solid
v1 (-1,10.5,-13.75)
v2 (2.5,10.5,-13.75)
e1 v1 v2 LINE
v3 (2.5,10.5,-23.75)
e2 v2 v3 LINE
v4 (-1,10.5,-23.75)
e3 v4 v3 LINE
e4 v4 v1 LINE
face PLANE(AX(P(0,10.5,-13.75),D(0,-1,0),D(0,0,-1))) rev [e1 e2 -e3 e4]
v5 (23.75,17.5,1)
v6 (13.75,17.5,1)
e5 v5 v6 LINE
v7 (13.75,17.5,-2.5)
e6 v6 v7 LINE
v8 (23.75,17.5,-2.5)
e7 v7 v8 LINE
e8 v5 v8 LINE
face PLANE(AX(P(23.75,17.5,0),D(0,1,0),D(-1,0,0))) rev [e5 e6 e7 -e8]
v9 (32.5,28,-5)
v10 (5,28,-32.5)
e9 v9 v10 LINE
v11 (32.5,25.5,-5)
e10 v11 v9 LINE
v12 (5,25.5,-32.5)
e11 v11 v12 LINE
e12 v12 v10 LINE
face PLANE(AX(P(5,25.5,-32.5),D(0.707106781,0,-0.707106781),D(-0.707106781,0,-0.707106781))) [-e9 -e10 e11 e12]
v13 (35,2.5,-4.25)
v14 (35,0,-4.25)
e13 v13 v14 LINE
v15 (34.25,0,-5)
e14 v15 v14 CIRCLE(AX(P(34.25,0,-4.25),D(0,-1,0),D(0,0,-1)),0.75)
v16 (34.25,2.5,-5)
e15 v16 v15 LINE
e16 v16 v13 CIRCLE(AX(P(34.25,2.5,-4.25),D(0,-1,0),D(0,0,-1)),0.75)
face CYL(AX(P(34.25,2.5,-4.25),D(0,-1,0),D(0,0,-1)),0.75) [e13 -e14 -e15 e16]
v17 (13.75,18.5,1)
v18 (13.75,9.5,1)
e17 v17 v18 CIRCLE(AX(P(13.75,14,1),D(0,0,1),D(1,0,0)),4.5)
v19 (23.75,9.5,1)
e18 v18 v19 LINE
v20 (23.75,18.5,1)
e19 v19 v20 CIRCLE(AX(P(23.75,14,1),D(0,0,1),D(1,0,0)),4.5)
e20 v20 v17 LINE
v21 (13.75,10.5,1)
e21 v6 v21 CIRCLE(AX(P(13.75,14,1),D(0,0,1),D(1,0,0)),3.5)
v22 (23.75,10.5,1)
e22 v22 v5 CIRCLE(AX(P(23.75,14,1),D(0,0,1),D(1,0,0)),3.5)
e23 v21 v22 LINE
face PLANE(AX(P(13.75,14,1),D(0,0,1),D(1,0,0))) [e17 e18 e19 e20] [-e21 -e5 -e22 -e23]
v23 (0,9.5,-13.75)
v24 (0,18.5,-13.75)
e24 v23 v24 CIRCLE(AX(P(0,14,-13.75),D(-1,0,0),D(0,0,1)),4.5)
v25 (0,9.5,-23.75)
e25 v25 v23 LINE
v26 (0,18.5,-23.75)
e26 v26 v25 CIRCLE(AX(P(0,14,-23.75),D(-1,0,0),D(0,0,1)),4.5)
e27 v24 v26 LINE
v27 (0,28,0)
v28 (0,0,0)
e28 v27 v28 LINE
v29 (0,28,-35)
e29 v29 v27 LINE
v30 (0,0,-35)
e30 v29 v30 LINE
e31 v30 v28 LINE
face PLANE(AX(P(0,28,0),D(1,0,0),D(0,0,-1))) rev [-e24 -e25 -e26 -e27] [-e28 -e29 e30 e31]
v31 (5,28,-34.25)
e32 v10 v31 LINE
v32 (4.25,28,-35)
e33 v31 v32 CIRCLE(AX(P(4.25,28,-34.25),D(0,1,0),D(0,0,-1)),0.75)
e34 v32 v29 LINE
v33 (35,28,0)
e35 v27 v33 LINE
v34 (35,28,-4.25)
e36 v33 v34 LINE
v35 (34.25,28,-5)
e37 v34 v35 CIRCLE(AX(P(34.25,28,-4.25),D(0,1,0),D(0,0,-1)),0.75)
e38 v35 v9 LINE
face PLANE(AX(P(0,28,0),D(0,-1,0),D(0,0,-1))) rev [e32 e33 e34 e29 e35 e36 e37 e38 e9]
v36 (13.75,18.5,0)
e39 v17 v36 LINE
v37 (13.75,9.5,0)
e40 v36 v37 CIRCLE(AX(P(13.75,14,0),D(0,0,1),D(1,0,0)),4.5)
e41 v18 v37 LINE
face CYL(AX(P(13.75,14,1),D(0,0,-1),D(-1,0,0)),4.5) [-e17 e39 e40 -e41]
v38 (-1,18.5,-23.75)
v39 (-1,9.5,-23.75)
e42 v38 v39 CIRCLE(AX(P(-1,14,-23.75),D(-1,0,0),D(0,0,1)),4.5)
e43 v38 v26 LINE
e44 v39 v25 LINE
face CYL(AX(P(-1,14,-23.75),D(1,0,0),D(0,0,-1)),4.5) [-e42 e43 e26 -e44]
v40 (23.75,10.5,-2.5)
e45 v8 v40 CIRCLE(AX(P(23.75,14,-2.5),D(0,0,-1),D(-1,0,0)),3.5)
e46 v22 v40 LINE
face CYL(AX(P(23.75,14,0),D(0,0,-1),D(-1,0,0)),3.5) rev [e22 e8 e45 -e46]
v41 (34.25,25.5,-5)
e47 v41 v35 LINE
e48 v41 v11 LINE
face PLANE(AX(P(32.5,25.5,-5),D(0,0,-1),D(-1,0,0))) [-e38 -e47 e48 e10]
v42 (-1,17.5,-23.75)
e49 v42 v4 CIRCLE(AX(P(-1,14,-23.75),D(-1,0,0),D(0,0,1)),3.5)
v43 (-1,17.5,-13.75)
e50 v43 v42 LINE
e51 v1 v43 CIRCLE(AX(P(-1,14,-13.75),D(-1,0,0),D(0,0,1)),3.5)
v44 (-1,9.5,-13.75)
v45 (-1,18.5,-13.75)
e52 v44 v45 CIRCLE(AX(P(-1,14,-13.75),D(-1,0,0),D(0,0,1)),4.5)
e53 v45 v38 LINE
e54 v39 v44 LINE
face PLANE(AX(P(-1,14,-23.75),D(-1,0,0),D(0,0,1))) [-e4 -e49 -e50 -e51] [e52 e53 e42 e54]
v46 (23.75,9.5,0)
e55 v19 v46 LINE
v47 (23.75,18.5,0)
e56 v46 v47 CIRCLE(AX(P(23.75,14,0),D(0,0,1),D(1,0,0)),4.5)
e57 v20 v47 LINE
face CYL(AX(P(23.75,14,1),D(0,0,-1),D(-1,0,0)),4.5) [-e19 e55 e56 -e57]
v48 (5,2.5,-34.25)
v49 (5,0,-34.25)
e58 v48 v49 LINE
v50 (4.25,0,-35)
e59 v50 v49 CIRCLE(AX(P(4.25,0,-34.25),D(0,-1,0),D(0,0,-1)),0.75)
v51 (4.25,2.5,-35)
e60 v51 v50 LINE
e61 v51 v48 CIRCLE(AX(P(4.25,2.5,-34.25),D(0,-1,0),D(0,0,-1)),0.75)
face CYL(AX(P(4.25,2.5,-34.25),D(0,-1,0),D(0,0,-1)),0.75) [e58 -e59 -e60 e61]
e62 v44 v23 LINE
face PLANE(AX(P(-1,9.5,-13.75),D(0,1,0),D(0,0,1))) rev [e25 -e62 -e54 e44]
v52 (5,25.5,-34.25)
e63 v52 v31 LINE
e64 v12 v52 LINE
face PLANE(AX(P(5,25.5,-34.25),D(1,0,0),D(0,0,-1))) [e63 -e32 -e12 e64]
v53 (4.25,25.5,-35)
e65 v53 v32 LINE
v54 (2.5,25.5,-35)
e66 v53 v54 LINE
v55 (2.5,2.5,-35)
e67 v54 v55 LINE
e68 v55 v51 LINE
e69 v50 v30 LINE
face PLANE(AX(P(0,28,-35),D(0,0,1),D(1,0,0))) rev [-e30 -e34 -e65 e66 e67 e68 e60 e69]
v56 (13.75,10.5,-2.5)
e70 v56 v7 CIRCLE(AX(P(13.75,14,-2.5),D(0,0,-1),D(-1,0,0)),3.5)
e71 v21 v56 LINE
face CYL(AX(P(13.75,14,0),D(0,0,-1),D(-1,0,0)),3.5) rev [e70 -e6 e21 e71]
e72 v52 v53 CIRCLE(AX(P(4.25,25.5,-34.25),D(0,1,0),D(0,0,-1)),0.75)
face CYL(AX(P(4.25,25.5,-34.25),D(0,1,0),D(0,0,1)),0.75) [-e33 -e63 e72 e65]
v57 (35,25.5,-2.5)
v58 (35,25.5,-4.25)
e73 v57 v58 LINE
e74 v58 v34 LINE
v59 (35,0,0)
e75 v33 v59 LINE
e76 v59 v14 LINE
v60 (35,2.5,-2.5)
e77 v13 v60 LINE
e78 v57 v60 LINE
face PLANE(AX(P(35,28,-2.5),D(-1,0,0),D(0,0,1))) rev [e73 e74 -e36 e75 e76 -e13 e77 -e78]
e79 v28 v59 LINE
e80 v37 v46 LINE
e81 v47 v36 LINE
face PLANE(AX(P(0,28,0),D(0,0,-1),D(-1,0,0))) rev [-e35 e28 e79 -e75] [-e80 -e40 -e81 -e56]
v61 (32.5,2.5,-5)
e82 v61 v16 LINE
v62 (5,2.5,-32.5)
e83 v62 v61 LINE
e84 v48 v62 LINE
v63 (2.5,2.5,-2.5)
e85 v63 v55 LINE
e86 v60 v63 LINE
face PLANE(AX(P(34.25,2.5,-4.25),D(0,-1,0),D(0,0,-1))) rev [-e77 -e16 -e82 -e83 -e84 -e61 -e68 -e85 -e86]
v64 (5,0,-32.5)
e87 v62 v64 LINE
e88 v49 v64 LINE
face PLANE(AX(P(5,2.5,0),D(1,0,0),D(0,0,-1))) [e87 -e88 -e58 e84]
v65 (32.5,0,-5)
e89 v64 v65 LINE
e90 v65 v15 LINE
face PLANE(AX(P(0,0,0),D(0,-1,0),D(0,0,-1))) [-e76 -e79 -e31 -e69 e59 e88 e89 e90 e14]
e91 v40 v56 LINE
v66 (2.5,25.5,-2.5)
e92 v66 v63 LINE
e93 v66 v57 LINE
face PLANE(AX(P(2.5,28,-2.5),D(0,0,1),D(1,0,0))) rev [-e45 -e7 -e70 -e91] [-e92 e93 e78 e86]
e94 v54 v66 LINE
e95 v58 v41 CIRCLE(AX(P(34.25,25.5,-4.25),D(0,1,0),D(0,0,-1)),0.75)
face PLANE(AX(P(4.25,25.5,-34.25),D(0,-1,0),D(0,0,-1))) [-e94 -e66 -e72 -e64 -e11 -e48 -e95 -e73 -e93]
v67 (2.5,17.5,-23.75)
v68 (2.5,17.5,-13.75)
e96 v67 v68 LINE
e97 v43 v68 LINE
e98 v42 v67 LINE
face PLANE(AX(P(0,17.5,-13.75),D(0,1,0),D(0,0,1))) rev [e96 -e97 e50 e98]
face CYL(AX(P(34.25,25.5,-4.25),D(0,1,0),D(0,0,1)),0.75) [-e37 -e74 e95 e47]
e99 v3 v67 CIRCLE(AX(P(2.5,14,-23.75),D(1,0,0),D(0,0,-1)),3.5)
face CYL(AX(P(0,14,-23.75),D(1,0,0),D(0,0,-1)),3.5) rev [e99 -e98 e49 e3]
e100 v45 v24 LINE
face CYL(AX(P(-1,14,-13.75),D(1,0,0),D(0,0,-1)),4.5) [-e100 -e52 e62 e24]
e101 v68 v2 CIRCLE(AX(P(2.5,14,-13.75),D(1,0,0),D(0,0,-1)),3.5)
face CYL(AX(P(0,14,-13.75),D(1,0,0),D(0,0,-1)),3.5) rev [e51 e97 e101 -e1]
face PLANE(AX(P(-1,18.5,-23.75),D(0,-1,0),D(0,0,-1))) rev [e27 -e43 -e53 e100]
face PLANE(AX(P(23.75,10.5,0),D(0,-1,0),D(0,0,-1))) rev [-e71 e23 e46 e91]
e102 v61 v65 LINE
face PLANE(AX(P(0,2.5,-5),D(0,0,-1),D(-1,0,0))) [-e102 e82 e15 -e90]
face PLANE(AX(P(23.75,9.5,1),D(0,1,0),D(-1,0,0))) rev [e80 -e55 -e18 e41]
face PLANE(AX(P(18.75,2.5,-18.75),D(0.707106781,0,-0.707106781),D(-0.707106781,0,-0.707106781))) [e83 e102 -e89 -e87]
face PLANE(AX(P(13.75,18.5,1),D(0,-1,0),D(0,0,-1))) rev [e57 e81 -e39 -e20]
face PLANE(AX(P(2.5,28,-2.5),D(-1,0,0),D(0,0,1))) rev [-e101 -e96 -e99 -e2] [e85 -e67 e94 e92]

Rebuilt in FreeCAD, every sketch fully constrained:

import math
import FreeCAD as App
import Part
import Sketcher
from FreeCAD import Vector
Q = App.Units.Quantity


def add_polygon(sketch, points):
    """Adds a closed chain of lines whose ends are joined by coincident constraints."""
    first, n = sketch.GeometryCount, len(points)
    for a, b in zip(points, points[1:] + points[:1]):
        sketch.addGeometry(Part.LineSegment(App.Vector(*a, 0), App.Vector(*b, 0)), False)
    for i in range(n):
        sketch.addConstraint(Sketcher.Constraint("Coincident", first + i, 2, first + (i + 1) % n, 1))

doc = App.newDocument("Part")
body = doc.addObject("PartDesign::Body", "Body")

sketch1 = body.newObject("Sketcher::SketchObject", "Sketch")
sketch1.AttachmentSupport = (doc.getObject("XZ_Plane"), [""])
sketch1.MapMode = "FlatFace"
add_polygon(sketch1, [(0, -35), (0, 0), (35, 0), (35, -2.5), (2.5, -2.5), (2.5, -35)])
sketch1.addConstraint(Sketcher.Constraint("Vertical", 0))
sketch1.addConstraint(Sketcher.Constraint("Horizontal", 1))
sketch1.addConstraint(Sketcher.Constraint("Vertical", 2))
sketch1.addConstraint(Sketcher.Constraint("Horizontal", 3))
sketch1.addConstraint(Sketcher.Constraint("Vertical", 4))
sketch1.addConstraint(Sketcher.Constraint("Horizontal", 5))
sketch1.addConstraint(Sketcher.Constraint("Coincident", 0, 2, -1, 1))
sketch1.addConstraint(Sketcher.Constraint("Equal", 1, 0))
sketch1.addConstraint(Sketcher.Constraint("Equal", 5, 2))
sketch1.addConstraint(Sketcher.Constraint("DistanceX", 1, 1, 1, 2, Q("35 mm")))
sketch1.addConstraint(Sketcher.Constraint("DistanceX", 3, 2, 3, 1, Q("32.5 mm")))
pad1 = body.newObject("PartDesign::Pad", "Pad")
pad1.Profile = sketch1
pad1.Length = 28
pad1.Reversed = True

sketch2 = body.newObject("Sketcher::SketchObject", "Sketch001")
sketch2.AttachmentSupport = (doc.getObject("XZ_Plane"), [""])
sketch2.MapMode = "FlatFace"
sketch2.AttachmentOffset = App.Placement(Vector(0, 0, -28), App.Rotation())
sketch2.addGeometry(Part.LineSegment(Vector(4.25, -35, 0), Vector(2.5, -35, 0)), False)
sketch2.addGeometry(Part.LineSegment(Vector(2.5, -35, 0), Vector(2.5, -2.5, 0)), False)
sketch2.addGeometry(Part.LineSegment(Vector(2.5, -2.5, 0), Vector(35, -2.5, 0)), False)
sketch2.addGeometry(Part.LineSegment(Vector(35, -2.5, 0), Vector(35, -4.25, 0)), False)
sketch2.addGeometry(Part.ArcOfCircle(Part.Circle(Vector(34.25, -4.25, 0), Vector(0, 0, 1), 0.75), math.radians(-90), math.radians(0)), False)
sketch2.addGeometry(Part.LineSegment(Vector(34.25, -5, 0), Vector(32.5, -5, 0)), False)
sketch2.addGeometry(Part.LineSegment(Vector(32.5, -5, 0), Vector(5, -32.5, 0)), False)
sketch2.addGeometry(Part.LineSegment(Vector(5, -32.5, 0), Vector(5, -34.25, 0)), False)
sketch2.addGeometry(Part.ArcOfCircle(Part.Circle(Vector(4.25, -34.25, 0), Vector(0, 0, 1), 0.75), math.radians(-90), math.radians(0)), False)
sketch2.addConstraint(Sketcher.Constraint("Coincident", 0, 2, 1, 1))
sketch2.addConstraint(Sketcher.Constraint("Coincident", 1, 2, 2, 1))
sketch2.addConstraint(Sketcher.Constraint("Coincident", 2, 2, 3, 1))
sketch2.addConstraint(Sketcher.Constraint("Tangent", 3, 2, 4, 2))
sketch2.addConstraint(Sketcher.Constraint("Tangent", 4, 1, 5, 1))
sketch2.addConstraint(Sketcher.Constraint("Coincident", 5, 2, 6, 1))
sketch2.addConstraint(Sketcher.Constraint("Coincident", 6, 2, 7, 1))
sketch2.addConstraint(Sketcher.Constraint("Tangent", 7, 2, 8, 2))
sketch2.addConstraint(Sketcher.Constraint("Tangent", 8, 1, 0, 1))
sketch2.addConstraint(Sketcher.Constraint("Horizontal", 0))
sketch2.addConstraint(Sketcher.Constraint("Vertical", 1))
sketch2.addConstraint(Sketcher.Constraint("Horizontal", 2))
sketch2.addConstraint(Sketcher.Constraint("Vertical", 3))
sketch2.addConstraint(Sketcher.Constraint("Horizontal", 5))
sketch2.addConstraint(Sketcher.Constraint("Vertical", 7))
sketch2.addConstraint(Sketcher.Constraint("Equal", 4, 8))
sketch2.addConstraint(Sketcher.Constraint("Equal", 0, 5))
sketch2.addConstraint(Sketcher.Constraint("Equal", 2, 1))
sketch2.addConstraint(Sketcher.Constraint("Equal", 5, 3))
sketch2.addConstraint(Sketcher.Constraint("Equal", 3, 7))
sketch2.addConstraint(Sketcher.Constraint("Radius", 4, Q("0.75 mm")))
sketch2.addConstraint(Sketcher.Constraint("DistanceX", 2, 1, 2, 2, Q("32.5 mm")))
sketch2.addConstraint(Sketcher.Constraint("DistanceY", 0, 2, -1, 1, Q("35 mm")))
sketch2.addConstraint(Sketcher.Constraint("DistanceX", -1, 1, 2, 2, Q("35 mm")))
sketch2.addConstraint(Sketcher.Constraint("DistanceY", 4, 1, -1, 1, Q("5 mm")))
pad2 = body.newObject("PartDesign::Pad", "Pad001")
pad2.Profile = sketch2
pad2.Length = 2.5

sketch3 = body.newObject("Sketcher::SketchObject", "Sketch002")
sketch3.AttachmentSupport = (doc.getObject("XZ_Plane"), [""])
sketch3.MapMode = "FlatFace"
sketch3.AttachmentOffset = App.Placement(Vector(0, 0, -2.5), App.Rotation())
sketch3.addGeometry(Part.LineSegment(Vector(4.25, -35, 0), Vector(2.5, -35, 0)), False)
sketch3.addGeometry(Part.LineSegment(Vector(2.5, -35, 0), Vector(2.5, -2.5, 0)), False)
sketch3.addGeometry(Part.LineSegment(Vector(2.5, -2.5, 0), Vector(35, -2.5, 0)), False)
sketch3.addGeometry(Part.LineSegment(Vector(35, -2.5, 0), Vector(35, -4.25, 0)), False)
sketch3.addGeometry(Part.ArcOfCircle(Part.Circle(Vector(34.25, -4.25, 0), Vector(0, 0, 1), 0.75), math.radians(-90), math.radians(0)), False)
sketch3.addGeometry(Part.LineSegment(Vector(34.25, -5, 0), Vector(32.5, -5, 0)), False)
sketch3.addGeometry(Part.LineSegment(Vector(32.5, -5, 0), Vector(5, -32.5, 0)), False)
sketch3.addGeometry(Part.LineSegment(Vector(5, -32.5, 0), Vector(5, -34.25, 0)), False)
sketch3.addGeometry(Part.ArcOfCircle(Part.Circle(Vector(4.25, -34.25, 0), Vector(0, 0, 1), 0.75), math.radians(-90), math.radians(0)), False)
sketch3.addConstraint(Sketcher.Constraint("Coincident", 0, 2, 1, 1))
sketch3.addConstraint(Sketcher.Constraint("Coincident", 1, 2, 2, 1))
sketch3.addConstraint(Sketcher.Constraint("Coincident", 2, 2, 3, 1))
sketch3.addConstraint(Sketcher.Constraint("Tangent", 3, 2, 4, 2))
sketch3.addConstraint(Sketcher.Constraint("Tangent", 4, 1, 5, 1))
sketch3.addConstraint(Sketcher.Constraint("Coincident", 5, 2, 6, 1))
sketch3.addConstraint(Sketcher.Constraint("Coincident", 6, 2, 7, 1))
sketch3.addConstraint(Sketcher.Constraint("Tangent", 7, 2, 8, 2))
sketch3.addConstraint(Sketcher.Constraint("Tangent", 8, 1, 0, 1))
sketch3.addConstraint(Sketcher.Constraint("Horizontal", 0))
sketch3.addConstraint(Sketcher.Constraint("Vertical", 1))
sketch3.addConstraint(Sketcher.Constraint("Horizontal", 2))
sketch3.addConstraint(Sketcher.Constraint("Vertical", 3))
sketch3.addConstraint(Sketcher.Constraint("Horizontal", 5))
sketch3.addConstraint(Sketcher.Constraint("Vertical", 7))
sketch3.addConstraint(Sketcher.Constraint("Equal", 4, 8))
sketch3.addConstraint(Sketcher.Constraint("Equal", 0, 5))
sketch3.addConstraint(Sketcher.Constraint("Equal", 2, 1))
sketch3.addConstraint(Sketcher.Constraint("Equal", 5, 3))
sketch3.addConstraint(Sketcher.Constraint("Equal", 3, 7))
sketch3.addConstraint(Sketcher.Constraint("Radius", 4, Q("0.75 mm")))
sketch3.addConstraint(Sketcher.Constraint("DistanceX", 2, 1, 2, 2, Q("32.5 mm")))
sketch3.addConstraint(Sketcher.Constraint("DistanceY", 0, 2, -1, 1, Q("35 mm")))
sketch3.addConstraint(Sketcher.Constraint("DistanceX", -1, 1, 2, 2, Q("35 mm")))
sketch3.addConstraint(Sketcher.Constraint("DistanceY", 4, 1, -1, 1, Q("5 mm")))
pad3 = body.newObject("PartDesign::Pad", "Pad002")
pad3.Profile = sketch3
pad3.Length = 2.5

sketch4 = body.newObject("Sketcher::SketchObject", "Sketch003")
sketch4.AttachmentSupport = (doc.getObject("XY_Plane"), [""])
sketch4.MapMode = "FlatFace"
sketch4.AttachmentOffset = App.Placement(Vector(0, 0, -2.5), App.Rotation())
sketch4.addGeometry(Part.LineSegment(Vector(13.75, 17.5, 0), Vector(23.75, 17.5, 0)), False)
sketch4.addGeometry(Part.ArcOfCircle(Part.Circle(Vector(23.75, 14, 0), Vector(0, 0, 1), 3.5), math.radians(-90), math.radians(90)), False)
sketch4.addGeometry(Part.LineSegment(Vector(23.75, 10.5, 0), Vector(13.75, 10.5, 0)), False)
sketch4.addGeometry(Part.ArcOfCircle(Part.Circle(Vector(13.75, 14, 0), Vector(0, 0, 1), 3.5), math.radians(90), math.radians(270)), False)
sketch4.addConstraint(Sketcher.Constraint("Tangent", 0, 2, 1, 2))
sketch4.addConstraint(Sketcher.Constraint("Tangent", 1, 1, 2, 1))
sketch4.addConstraint(Sketcher.Constraint("Tangent", 2, 2, 3, 2))
sketch4.addConstraint(Sketcher.Constraint("Tangent", 3, 1, 0, 1))
sketch4.addConstraint(Sketcher.Constraint("Horizontal", 0))
sketch4.addConstraint(Sketcher.Constraint("Horizontal", 2))
sketch4.addConstraint(Sketcher.Constraint("Radius", 1, Q("3.5 mm")))
sketch4.addConstraint(Sketcher.Constraint("DistanceX", 0, 1, 0, 2, Q("10 mm")))
sketch4.addConstraint(Sketcher.Constraint("DistanceY", -1, 1, 1, 3, Q("14 mm")))
sketch4.addConstraint(Sketcher.Constraint("DistanceX", -1, 1, 1, 3, Q("23.75 mm")))
pocket1 = body.newObject("PartDesign::Pocket", "Pocket")
pocket1.Profile = sketch4
pocket1.Length = 2.5
pocket1.Reversed = True

sketch5 = body.newObject("Sketcher::SketchObject", "Sketch004")
sketch5.AttachmentSupport = (doc.getObject("YZ_Plane"), [""])
sketch5.MapMode = "FlatFace"
sketch5.AttachmentOffset = App.Placement(Vector(0, 0, 2.5), App.Rotation())
sketch5.addGeometry(Part.LineSegment(Vector(17.5, -23.75, 0), Vector(17.5, -13.75, 0)), False)
sketch5.addGeometry(Part.ArcOfCircle(Part.Circle(Vector(14, -13.75, 0), Vector(0, 0, 1), 3.5), math.radians(0), math.radians(180)), False)
sketch5.addGeometry(Part.LineSegment(Vector(10.5, -13.75, 0), Vector(10.5, -23.75, 0)), False)
sketch5.addGeometry(Part.ArcOfCircle(Part.Circle(Vector(14, -23.75, 0), Vector(0, 0, 1), 3.5), math.radians(180), math.radians(360)), False)
sketch5.addConstraint(Sketcher.Constraint("Tangent", 0, 2, 1, 1))
sketch5.addConstraint(Sketcher.Constraint("Tangent", 1, 2, 2, 1))
sketch5.addConstraint(Sketcher.Constraint("Tangent", 2, 2, 3, 1))
sketch5.addConstraint(Sketcher.Constraint("Tangent", 3, 2, 0, 1))
sketch5.addConstraint(Sketcher.Constraint("Vertical", 0))
sketch5.addConstraint(Sketcher.Constraint("Vertical", 2))
sketch5.addConstraint(Sketcher.Constraint("Radius", 1, Q("3.5 mm")))
sketch5.addConstraint(Sketcher.Constraint("DistanceY", 0, 1, 0, 2, Q("10 mm")))
sketch5.addConstraint(Sketcher.Constraint("DistanceX", -1, 1, 1, 3, Q("14 mm")))
sketch5.addConstraint(Sketcher.Constraint("DistanceY", 1, 3, -1, 1, Q("13.75 mm")))
pocket2 = body.newObject("PartDesign::Pocket", "Pocket001")
pocket2.Profile = sketch5
pocket2.Length = 2.5

sketch6 = body.newObject("Sketcher::SketchObject", "Sketch005")
sketch6.AttachmentSupport = (doc.getObject("XY_Plane"), [""])
sketch6.MapMode = "FlatFace"
sketch6.addGeometry(Part.LineSegment(Vector(23.75, 18.5, 0), Vector(13.75, 18.5, 0)), False)
sketch6.addGeometry(Part.ArcOfCircle(Part.Circle(Vector(13.75, 14, 0), Vector(0, 0, 1), 4.5), math.radians(90), math.radians(270)), False)
sketch6.addGeometry(Part.LineSegment(Vector(13.75, 9.5, 0), Vector(23.75, 9.5, 0)), False)
sketch6.addGeometry(Part.ArcOfCircle(Part.Circle(Vector(23.75, 14, 0), Vector(0, 0, 1), 4.5), math.radians(-90), math.radians(90)), False)
sketch6.addGeometry(Part.LineSegment(Vector(13.75, 17.5, 0), Vector(23.75, 17.5, 0)), False)
sketch6.addGeometry(Part.ArcOfCircle(Part.Circle(Vector(23.75, 14, 0), Vector(0, 0, 1), 3.5), math.radians(-90), math.radians(90)), False)
sketch6.addGeometry(Part.LineSegment(Vector(23.75, 10.5, 0), Vector(13.75, 10.5, 0)), False)
sketch6.addGeometry(Part.ArcOfCircle(Part.Circle(Vector(13.75, 14, 0), Vector(0, 0, 1), 3.5), math.radians(90), math.radians(270)), False)
sketch6.addConstraint(Sketcher.Constraint("Tangent", 0, 2, 1, 1))
sketch6.addConstraint(Sketcher.Constraint("Tangent", 1, 2, 2, 1))
sketch6.addConstraint(Sketcher.Constraint("Tangent", 2, 2, 3, 1))
sketch6.addConstraint(Sketcher.Constraint("Tangent", 3, 2, 0, 1))
sketch6.addConstraint(Sketcher.Constraint("Tangent", 4, 2, 5, 2))
sketch6.addConstraint(Sketcher.Constraint("Tangent", 5, 1, 6, 1))
sketch6.addConstraint(Sketcher.Constraint("Tangent", 6, 2, 7, 2))
sketch6.addConstraint(Sketcher.Constraint("Tangent", 7, 1, 4, 1))
sketch6.addConstraint(Sketcher.Constraint("Horizontal", 0))
sketch6.addConstraint(Sketcher.Constraint("Horizontal", 2))
sketch6.addConstraint(Sketcher.Constraint("Horizontal", 4))
sketch6.addConstraint(Sketcher.Constraint("Horizontal", 6))
sketch6.addConstraint(Sketcher.Constraint("Coincident", 5, 3, 3, 3))
sketch6.addConstraint(Sketcher.Constraint("Vertical", 7, 3, 0, 2))
sketch6.addConstraint(Sketcher.Constraint("Radius", 1, Q("4.5 mm")))
sketch6.addConstraint(Sketcher.Constraint("Radius", 5, Q("3.5 mm")))
sketch6.addConstraint(Sketcher.Constraint("DistanceX", 0, 2, 0, 1, Q("10 mm")))
sketch6.addConstraint(Sketcher.Constraint("DistanceY", -1, 1, 1, 3, Q("14 mm")))
sketch6.addConstraint(Sketcher.Constraint("DistanceX", -1, 1, 1, 3, Q("13.75 mm")))
pad4 = body.newObject("PartDesign::Pad", "Pad003")
pad4.Profile = sketch6
pad4.Length = 1

sketch7 = body.newObject("Sketcher::SketchObject", "Sketch006")
sketch7.AttachmentSupport = (doc.getObject("YZ_Plane"), [""])
sketch7.MapMode = "FlatFace"
sketch7.addGeometry(Part.LineSegment(Vector(18.5, -13.75, 0), Vector(18.5, -23.75, 0)), False)
sketch7.addGeometry(Part.ArcOfCircle(Part.Circle(Vector(14, -23.75, 0), Vector(0, 0, 1), 4.5), math.radians(180), math.radians(360)), False)
sketch7.addGeometry(Part.LineSegment(Vector(9.5, -23.75, 0), Vector(9.5, -13.75, 0)), False)
sketch7.addGeometry(Part.ArcOfCircle(Part.Circle(Vector(14, -13.75, 0), Vector(0, 0, 1), 4.5), math.radians(0), math.radians(180)), False)
sketch7.addGeometry(Part.LineSegment(Vector(10.5, -13.75, 0), Vector(10.5, -23.75, 0)), False)
sketch7.addGeometry(Part.ArcOfCircle(Part.Circle(Vector(14, -23.75, 0), Vector(0, 0, 1), 3.5), math.radians(180), math.radians(360)), False)
sketch7.addGeometry(Part.LineSegment(Vector(17.5, -23.75, 0), Vector(17.5, -13.75, 0)), False)
sketch7.addGeometry(Part.ArcOfCircle(Part.Circle(Vector(14, -13.75, 0), Vector(0, 0, 1), 3.5), math.radians(0), math.radians(180)), False)
sketch7.addConstraint(Sketcher.Constraint("Tangent", 0, 2, 1, 2))
sketch7.addConstraint(Sketcher.Constraint("Tangent", 1, 1, 2, 1))
sketch7.addConstraint(Sketcher.Constraint("Tangent", 2, 2, 3, 2))
sketch7.addConstraint(Sketcher.Constraint("Tangent", 3, 1, 0, 1))
sketch7.addConstraint(Sketcher.Constraint("Tangent", 4, 2, 5, 1))
sketch7.addConstraint(Sketcher.Constraint("Tangent", 5, 2, 6, 1))
sketch7.addConstraint(Sketcher.Constraint("Tangent", 6, 2, 7, 1))
sketch7.addConstraint(Sketcher.Constraint("Tangent", 7, 2, 4, 1))
sketch7.addConstraint(Sketcher.Constraint("Vertical", 0))
sketch7.addConstraint(Sketcher.Constraint("Vertical", 2))
sketch7.addConstraint(Sketcher.Constraint("Vertical", 4))
sketch7.addConstraint(Sketcher.Constraint("Vertical", 6))
sketch7.addConstraint(Sketcher.Constraint("Coincident", 5, 3, 1, 3))
sketch7.addConstraint(Sketcher.Constraint("Horizontal", 7, 3, 2, 2))
sketch7.addConstraint(Sketcher.Constraint("Radius", 1, Q("4.5 mm")))
sketch7.addConstraint(Sketcher.Constraint("Radius", 5, Q("3.5 mm")))
sketch7.addConstraint(Sketcher.Constraint("DistanceY", 0, 2, 0, 1, Q("10 mm")))
sketch7.addConstraint(Sketcher.Constraint("DistanceX", -1, 1, 1, 3, Q("14 mm")))
sketch7.addConstraint(Sketcher.Constraint("DistanceY", 1, 3, -1, 1, Q("23.75 mm")))
pad5 = body.newObject("PartDesign::Pad", "Pad004")
pad5.Profile = sketch7
pad5.Length = 1
pad5.Reversed = True

doc.recompute()
